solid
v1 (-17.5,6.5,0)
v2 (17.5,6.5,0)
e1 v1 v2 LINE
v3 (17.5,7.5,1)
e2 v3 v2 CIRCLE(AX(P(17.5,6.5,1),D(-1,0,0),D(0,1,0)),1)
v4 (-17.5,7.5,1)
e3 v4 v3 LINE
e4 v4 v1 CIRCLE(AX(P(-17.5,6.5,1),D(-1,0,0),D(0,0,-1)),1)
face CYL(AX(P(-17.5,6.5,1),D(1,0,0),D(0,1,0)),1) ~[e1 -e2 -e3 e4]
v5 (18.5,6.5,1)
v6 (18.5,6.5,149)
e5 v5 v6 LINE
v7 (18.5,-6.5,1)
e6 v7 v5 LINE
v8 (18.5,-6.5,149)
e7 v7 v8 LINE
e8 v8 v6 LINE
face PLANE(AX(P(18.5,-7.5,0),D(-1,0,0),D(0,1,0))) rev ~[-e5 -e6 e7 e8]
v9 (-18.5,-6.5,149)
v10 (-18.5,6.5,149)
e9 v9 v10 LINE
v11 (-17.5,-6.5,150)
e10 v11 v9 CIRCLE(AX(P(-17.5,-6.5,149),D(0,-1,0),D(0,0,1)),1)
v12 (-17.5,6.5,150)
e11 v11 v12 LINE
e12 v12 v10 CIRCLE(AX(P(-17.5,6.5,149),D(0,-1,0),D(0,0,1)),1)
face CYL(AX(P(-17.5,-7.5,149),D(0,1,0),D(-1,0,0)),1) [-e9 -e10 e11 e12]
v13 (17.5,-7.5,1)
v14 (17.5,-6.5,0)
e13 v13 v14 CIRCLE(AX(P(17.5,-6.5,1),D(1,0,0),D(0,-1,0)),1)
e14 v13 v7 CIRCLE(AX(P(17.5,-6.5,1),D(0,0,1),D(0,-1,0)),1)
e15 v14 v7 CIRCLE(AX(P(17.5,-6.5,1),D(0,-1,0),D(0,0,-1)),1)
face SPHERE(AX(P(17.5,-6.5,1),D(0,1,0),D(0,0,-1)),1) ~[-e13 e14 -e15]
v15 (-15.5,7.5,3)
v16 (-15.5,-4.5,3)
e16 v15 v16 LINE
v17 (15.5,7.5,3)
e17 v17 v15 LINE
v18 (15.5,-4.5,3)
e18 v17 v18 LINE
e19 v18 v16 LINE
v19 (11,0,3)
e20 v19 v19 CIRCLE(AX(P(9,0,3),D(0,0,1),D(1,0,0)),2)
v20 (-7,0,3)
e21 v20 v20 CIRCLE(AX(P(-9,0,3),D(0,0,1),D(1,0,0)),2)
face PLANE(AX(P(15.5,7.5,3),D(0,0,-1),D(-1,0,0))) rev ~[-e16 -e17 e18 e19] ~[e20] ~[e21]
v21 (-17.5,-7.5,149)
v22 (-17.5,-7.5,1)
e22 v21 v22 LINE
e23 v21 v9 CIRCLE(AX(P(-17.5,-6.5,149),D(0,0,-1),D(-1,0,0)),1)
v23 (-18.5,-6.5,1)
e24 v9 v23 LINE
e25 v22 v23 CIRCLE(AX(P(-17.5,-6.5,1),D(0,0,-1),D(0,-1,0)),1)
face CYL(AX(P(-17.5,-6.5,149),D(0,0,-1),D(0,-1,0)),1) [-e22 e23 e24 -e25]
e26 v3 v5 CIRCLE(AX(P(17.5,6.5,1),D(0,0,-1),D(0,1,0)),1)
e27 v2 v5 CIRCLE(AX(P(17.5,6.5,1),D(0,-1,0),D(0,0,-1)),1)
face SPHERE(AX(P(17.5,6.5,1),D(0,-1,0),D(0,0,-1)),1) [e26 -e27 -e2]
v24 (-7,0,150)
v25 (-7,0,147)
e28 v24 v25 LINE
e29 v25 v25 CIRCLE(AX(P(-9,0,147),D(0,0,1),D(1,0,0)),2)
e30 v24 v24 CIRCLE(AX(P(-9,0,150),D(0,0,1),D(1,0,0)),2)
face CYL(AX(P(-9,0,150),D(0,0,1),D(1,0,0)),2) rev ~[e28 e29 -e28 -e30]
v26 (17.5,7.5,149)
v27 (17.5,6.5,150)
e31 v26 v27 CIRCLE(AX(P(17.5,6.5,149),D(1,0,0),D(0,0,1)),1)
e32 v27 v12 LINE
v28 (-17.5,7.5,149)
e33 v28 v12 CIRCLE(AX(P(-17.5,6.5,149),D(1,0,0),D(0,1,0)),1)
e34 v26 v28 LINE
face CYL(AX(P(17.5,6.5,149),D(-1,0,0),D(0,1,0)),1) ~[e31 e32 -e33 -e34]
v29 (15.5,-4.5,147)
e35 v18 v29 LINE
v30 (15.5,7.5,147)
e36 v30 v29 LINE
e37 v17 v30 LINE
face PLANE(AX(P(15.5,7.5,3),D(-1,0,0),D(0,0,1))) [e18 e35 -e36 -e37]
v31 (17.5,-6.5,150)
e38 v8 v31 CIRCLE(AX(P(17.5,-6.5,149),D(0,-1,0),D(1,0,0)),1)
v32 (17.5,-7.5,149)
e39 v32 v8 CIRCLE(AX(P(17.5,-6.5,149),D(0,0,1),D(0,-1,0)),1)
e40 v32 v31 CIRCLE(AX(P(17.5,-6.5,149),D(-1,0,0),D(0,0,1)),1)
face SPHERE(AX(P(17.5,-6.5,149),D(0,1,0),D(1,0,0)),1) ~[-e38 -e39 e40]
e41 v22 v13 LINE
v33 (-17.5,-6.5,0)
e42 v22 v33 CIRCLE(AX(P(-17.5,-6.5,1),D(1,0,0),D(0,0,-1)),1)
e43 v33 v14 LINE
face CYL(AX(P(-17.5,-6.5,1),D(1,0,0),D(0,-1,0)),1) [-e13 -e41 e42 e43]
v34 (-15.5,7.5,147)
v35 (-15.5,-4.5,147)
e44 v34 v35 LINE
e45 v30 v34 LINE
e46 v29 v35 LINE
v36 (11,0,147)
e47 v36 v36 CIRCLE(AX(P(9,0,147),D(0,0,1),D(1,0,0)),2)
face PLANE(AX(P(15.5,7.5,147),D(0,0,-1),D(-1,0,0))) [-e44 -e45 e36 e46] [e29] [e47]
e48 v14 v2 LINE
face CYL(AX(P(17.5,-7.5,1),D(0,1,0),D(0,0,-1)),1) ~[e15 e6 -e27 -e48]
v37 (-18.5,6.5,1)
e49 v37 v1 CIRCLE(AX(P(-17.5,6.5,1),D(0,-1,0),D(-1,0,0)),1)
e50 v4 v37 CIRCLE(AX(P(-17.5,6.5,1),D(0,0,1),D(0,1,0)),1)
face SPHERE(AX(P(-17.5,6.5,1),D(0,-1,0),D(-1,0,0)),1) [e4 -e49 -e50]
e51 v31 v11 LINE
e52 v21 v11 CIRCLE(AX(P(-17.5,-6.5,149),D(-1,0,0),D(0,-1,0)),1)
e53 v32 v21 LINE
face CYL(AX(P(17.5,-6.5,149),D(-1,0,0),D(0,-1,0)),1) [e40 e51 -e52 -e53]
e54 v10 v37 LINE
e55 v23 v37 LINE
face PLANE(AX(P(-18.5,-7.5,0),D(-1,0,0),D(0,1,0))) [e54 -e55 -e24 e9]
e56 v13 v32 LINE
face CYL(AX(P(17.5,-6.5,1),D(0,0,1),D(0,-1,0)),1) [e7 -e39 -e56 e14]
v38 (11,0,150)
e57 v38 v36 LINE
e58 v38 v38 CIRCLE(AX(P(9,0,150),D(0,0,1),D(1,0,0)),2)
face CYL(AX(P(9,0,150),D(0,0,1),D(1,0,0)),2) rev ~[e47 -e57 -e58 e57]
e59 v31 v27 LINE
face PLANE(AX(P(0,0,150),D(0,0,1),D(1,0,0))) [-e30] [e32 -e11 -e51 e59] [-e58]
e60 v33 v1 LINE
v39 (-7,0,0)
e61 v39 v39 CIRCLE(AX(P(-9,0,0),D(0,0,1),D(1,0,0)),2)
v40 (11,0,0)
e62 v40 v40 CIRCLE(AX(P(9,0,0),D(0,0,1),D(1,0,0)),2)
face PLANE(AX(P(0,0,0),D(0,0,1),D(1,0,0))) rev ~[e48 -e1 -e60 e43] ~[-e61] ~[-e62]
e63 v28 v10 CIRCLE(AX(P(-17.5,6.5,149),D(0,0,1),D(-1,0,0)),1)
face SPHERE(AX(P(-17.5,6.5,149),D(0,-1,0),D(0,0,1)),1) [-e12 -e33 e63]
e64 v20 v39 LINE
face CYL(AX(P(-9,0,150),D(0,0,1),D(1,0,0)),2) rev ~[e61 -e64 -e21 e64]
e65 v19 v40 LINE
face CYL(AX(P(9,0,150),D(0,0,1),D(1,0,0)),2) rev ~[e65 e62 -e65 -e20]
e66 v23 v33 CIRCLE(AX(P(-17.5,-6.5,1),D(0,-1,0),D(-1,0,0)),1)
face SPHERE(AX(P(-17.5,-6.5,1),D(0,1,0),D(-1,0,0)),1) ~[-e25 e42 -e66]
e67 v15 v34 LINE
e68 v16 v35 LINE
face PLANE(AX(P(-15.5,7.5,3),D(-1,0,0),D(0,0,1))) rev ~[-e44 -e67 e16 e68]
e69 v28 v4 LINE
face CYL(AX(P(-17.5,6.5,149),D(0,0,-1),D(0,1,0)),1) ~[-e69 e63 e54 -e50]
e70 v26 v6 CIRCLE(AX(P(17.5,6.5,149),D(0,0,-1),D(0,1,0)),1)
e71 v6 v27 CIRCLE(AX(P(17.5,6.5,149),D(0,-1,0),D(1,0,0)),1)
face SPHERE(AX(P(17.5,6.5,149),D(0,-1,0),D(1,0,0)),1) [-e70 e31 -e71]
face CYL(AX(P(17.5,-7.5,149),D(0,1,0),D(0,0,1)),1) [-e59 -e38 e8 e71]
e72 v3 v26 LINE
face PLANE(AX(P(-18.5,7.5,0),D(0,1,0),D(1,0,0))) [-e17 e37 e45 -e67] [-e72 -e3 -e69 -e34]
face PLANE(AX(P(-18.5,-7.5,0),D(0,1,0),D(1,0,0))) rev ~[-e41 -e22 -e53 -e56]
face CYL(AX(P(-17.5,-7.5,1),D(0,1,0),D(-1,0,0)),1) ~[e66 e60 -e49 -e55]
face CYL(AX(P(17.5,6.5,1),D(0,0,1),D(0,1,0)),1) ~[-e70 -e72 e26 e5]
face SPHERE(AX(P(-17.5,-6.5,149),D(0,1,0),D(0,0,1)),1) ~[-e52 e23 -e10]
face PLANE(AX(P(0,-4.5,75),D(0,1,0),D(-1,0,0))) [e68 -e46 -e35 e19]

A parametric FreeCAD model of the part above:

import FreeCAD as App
import Part
import Sketcher

V = App.Vector


def edges_at(feature, points):
    """Names of the edges that pass closest to the given points."""
    edges = feature.Shape.Edges
    near = lambda p: min(range(len(edges)), key=lambda i: edges[i].distToShape(Part.Vertex(*p))[0])
    return sorted({f"Edge{near(p) + 1}" for p in points})


def add_polygon(sketch, points):
    """Adds a closed chain of lines whose ends are joined by coincident constraints."""
    first, n = sketch.GeometryCount, len(points)
    for a, b in zip(points, points[1:] + points[:1]):
        sketch.addGeometry(Part.LineSegment(App.Vector(*a, 0), App.Vector(*b, 0)), False)
    for i in range(n):
        sketch.addConstraint(Sketcher.Constraint("Coincident", first + i, 2, first + (i + 1) % n, 1))

doc = App.newDocument("Part")
params = doc.addObject("Spreadsheet::Sheet", "Params")
for row, (alias, value) in enumerate([
    ("sketch1_width", "37 mm"),
    ("sketch1_height", "15 mm"),
    ("pad1_length", "150 mm"),
    ("sketch2_width", "31 mm"),
    ("sketch2_height", "144 mm"),
    ("pocket1_length", "12 mm"),
    ("sketch3_diameter", "4 mm"),
    ("fillet_radius", "1 mm"),
    ("fillet2_radius", "1 mm"),
], start=1):
    params.set(f"A{row}", alias)
    params.set(f"B{row}", "=" + value)
    params.setAlias(f"B{row}", alias)

body = doc.addObject("PartDesign::Body", "Body")

sketch1 = body.newObject("Sketcher::SketchObject", "Sketch")
sketch1.AttachmentSupport = (doc.getObject("XY_Plane"), [""])
sketch1.MapMode = "FlatFace"
add_polygon(sketch1, [(-18.5, 7.5), (-18.5, -7.5), (18.5, -7.5), (18.5, 7.5)])
sketch1.addConstraint([
    Sketcher.Constraint("Vertical", 0),
    Sketcher.Constraint("Horizontal", 1),
    Sketcher.Constraint("Vertical", 2),
    Sketcher.Constraint("Horizontal", 3),
    Sketcher.Constraint("Symmetric", 0, 2, 2, 2, -1, 1),
    Sketcher.Constraint("DistanceX", 1, 1, 1, 2, 37.0),
    Sketcher.Constraint("DistanceY", 0, 2, 0, 1, 15.0),
])
sketch1.setExpression("Constraints[9]", "Params.sketch1_width")
sketch1.setExpression("Constraints[10]", "Params.sketch1_height")
pad1 = body.newObject("PartDesign::Pad", "Pad")
pad1.Profile = sketch1
pad1.setExpression("Length", "Params.pad1_length")

sketch2 = body.newObject("Sketcher::SketchObject", "Sketch001")
sketch2.AttachmentSupport = (doc.getObject("XZ_Plane"), [""])
sketch2.MapMode = "FlatFace"
sketch2.AttachmentOffset = App.Placement(V(0, 0, -7.5), App.Rotation())
add_polygon(sketch2, [(15.5, 147), (15.5, 3), (-15.5, 3), (-15.5, 147)])
sketch2.addConstraint([
    Sketcher.Constraint("Vertical", 0),
    Sketcher.Constraint("Horizontal", 1),
    Sketcher.Constraint("Vertical", 2),
    Sketcher.Constraint("Horizontal", 3),
    Sketcher.Constraint("DistanceX", 1, 2, 1, 1, 31.0),
    Sketcher.Constraint("DistanceY", 0, 2, 0, 1, 144.0),
    Sketcher.Constraint("DistanceY", -1, 1, 0, 2, 3.0),
    Sketcher.Constraint("DistanceX", -1, 1, 0, 2, 15.5),
])
sketch2.setExpression("Constraints[8]", "Params.sketch2_width")
sketch2.setExpression("Constraints[9]", "Params.sketch2_height")
pocket1 = body.newObject("PartDesign::Pocket", "Pocket")
pocket1.Profile = sketch2
pocket1.setExpression("Length", "Params.pocket1_length")
pocket1.Reversed = True

sketch3 = body.newObject("Sketcher::SketchObject", "Sketch002")
sketch3.AttachmentSupport = (doc.getObject("XY_Plane"), [""])
sketch3.MapMode = "FlatFace"
sketch3.AttachmentOffset = App.Placement(V(0, 0, 150), App.Rotation())
sketch3.addGeometry([
    Part.Circle(V(9, 0, 0), V(0, 0, 1), 2),
    Part.Circle(V(-9, 0, 0), V(0, 0, 1), 2),
], False)
sketch3.addConstraint([
    Sketcher.Constraint("Equal", 0, 1),
    Sketcher.Constraint("Symmetric", 0, 3, 1, 3, -1, 1),
    Sketcher.Constraint("PointOnObject", 0, 3, -1),
    Sketcher.Constraint("Diameter", 0, 4.0),
    Sketcher.Constraint("DistanceX", -1, 1, 0, 3, 9.0),
])
sketch3.setExpression("Constraints[3]", "Params.sketch3_diameter")
pocket2 = body.newObject("PartDesign::Pocket", "Pocket001")
pocket2.Profile = sketch3
pocket2.Type = "ThroughAll"
doc.recompute()

fillet = body.newObject("PartDesign::Fillet", "Fillet")
fillet.Base = (pocket2, edges_at(pocket2, [
    (-18.5, 0, 150),
    (18.5, 0, 150),
    (-18.5, 0, 0),
    (18.5, 0, 0),
]))
fillet.setExpression("Radius", "Params.fillet_radius")
doc.recompute()

fillet2 = body.newObject("PartDesign::Fillet", "Fillet001")
fillet2.Base = (fillet, edges_at(fillet, [(18.5, -7.5, 75), (18.5, 7.5, 75)]))
fillet2.setExpression("Radius", "Params.fillet2_radius")

doc.recompute()
